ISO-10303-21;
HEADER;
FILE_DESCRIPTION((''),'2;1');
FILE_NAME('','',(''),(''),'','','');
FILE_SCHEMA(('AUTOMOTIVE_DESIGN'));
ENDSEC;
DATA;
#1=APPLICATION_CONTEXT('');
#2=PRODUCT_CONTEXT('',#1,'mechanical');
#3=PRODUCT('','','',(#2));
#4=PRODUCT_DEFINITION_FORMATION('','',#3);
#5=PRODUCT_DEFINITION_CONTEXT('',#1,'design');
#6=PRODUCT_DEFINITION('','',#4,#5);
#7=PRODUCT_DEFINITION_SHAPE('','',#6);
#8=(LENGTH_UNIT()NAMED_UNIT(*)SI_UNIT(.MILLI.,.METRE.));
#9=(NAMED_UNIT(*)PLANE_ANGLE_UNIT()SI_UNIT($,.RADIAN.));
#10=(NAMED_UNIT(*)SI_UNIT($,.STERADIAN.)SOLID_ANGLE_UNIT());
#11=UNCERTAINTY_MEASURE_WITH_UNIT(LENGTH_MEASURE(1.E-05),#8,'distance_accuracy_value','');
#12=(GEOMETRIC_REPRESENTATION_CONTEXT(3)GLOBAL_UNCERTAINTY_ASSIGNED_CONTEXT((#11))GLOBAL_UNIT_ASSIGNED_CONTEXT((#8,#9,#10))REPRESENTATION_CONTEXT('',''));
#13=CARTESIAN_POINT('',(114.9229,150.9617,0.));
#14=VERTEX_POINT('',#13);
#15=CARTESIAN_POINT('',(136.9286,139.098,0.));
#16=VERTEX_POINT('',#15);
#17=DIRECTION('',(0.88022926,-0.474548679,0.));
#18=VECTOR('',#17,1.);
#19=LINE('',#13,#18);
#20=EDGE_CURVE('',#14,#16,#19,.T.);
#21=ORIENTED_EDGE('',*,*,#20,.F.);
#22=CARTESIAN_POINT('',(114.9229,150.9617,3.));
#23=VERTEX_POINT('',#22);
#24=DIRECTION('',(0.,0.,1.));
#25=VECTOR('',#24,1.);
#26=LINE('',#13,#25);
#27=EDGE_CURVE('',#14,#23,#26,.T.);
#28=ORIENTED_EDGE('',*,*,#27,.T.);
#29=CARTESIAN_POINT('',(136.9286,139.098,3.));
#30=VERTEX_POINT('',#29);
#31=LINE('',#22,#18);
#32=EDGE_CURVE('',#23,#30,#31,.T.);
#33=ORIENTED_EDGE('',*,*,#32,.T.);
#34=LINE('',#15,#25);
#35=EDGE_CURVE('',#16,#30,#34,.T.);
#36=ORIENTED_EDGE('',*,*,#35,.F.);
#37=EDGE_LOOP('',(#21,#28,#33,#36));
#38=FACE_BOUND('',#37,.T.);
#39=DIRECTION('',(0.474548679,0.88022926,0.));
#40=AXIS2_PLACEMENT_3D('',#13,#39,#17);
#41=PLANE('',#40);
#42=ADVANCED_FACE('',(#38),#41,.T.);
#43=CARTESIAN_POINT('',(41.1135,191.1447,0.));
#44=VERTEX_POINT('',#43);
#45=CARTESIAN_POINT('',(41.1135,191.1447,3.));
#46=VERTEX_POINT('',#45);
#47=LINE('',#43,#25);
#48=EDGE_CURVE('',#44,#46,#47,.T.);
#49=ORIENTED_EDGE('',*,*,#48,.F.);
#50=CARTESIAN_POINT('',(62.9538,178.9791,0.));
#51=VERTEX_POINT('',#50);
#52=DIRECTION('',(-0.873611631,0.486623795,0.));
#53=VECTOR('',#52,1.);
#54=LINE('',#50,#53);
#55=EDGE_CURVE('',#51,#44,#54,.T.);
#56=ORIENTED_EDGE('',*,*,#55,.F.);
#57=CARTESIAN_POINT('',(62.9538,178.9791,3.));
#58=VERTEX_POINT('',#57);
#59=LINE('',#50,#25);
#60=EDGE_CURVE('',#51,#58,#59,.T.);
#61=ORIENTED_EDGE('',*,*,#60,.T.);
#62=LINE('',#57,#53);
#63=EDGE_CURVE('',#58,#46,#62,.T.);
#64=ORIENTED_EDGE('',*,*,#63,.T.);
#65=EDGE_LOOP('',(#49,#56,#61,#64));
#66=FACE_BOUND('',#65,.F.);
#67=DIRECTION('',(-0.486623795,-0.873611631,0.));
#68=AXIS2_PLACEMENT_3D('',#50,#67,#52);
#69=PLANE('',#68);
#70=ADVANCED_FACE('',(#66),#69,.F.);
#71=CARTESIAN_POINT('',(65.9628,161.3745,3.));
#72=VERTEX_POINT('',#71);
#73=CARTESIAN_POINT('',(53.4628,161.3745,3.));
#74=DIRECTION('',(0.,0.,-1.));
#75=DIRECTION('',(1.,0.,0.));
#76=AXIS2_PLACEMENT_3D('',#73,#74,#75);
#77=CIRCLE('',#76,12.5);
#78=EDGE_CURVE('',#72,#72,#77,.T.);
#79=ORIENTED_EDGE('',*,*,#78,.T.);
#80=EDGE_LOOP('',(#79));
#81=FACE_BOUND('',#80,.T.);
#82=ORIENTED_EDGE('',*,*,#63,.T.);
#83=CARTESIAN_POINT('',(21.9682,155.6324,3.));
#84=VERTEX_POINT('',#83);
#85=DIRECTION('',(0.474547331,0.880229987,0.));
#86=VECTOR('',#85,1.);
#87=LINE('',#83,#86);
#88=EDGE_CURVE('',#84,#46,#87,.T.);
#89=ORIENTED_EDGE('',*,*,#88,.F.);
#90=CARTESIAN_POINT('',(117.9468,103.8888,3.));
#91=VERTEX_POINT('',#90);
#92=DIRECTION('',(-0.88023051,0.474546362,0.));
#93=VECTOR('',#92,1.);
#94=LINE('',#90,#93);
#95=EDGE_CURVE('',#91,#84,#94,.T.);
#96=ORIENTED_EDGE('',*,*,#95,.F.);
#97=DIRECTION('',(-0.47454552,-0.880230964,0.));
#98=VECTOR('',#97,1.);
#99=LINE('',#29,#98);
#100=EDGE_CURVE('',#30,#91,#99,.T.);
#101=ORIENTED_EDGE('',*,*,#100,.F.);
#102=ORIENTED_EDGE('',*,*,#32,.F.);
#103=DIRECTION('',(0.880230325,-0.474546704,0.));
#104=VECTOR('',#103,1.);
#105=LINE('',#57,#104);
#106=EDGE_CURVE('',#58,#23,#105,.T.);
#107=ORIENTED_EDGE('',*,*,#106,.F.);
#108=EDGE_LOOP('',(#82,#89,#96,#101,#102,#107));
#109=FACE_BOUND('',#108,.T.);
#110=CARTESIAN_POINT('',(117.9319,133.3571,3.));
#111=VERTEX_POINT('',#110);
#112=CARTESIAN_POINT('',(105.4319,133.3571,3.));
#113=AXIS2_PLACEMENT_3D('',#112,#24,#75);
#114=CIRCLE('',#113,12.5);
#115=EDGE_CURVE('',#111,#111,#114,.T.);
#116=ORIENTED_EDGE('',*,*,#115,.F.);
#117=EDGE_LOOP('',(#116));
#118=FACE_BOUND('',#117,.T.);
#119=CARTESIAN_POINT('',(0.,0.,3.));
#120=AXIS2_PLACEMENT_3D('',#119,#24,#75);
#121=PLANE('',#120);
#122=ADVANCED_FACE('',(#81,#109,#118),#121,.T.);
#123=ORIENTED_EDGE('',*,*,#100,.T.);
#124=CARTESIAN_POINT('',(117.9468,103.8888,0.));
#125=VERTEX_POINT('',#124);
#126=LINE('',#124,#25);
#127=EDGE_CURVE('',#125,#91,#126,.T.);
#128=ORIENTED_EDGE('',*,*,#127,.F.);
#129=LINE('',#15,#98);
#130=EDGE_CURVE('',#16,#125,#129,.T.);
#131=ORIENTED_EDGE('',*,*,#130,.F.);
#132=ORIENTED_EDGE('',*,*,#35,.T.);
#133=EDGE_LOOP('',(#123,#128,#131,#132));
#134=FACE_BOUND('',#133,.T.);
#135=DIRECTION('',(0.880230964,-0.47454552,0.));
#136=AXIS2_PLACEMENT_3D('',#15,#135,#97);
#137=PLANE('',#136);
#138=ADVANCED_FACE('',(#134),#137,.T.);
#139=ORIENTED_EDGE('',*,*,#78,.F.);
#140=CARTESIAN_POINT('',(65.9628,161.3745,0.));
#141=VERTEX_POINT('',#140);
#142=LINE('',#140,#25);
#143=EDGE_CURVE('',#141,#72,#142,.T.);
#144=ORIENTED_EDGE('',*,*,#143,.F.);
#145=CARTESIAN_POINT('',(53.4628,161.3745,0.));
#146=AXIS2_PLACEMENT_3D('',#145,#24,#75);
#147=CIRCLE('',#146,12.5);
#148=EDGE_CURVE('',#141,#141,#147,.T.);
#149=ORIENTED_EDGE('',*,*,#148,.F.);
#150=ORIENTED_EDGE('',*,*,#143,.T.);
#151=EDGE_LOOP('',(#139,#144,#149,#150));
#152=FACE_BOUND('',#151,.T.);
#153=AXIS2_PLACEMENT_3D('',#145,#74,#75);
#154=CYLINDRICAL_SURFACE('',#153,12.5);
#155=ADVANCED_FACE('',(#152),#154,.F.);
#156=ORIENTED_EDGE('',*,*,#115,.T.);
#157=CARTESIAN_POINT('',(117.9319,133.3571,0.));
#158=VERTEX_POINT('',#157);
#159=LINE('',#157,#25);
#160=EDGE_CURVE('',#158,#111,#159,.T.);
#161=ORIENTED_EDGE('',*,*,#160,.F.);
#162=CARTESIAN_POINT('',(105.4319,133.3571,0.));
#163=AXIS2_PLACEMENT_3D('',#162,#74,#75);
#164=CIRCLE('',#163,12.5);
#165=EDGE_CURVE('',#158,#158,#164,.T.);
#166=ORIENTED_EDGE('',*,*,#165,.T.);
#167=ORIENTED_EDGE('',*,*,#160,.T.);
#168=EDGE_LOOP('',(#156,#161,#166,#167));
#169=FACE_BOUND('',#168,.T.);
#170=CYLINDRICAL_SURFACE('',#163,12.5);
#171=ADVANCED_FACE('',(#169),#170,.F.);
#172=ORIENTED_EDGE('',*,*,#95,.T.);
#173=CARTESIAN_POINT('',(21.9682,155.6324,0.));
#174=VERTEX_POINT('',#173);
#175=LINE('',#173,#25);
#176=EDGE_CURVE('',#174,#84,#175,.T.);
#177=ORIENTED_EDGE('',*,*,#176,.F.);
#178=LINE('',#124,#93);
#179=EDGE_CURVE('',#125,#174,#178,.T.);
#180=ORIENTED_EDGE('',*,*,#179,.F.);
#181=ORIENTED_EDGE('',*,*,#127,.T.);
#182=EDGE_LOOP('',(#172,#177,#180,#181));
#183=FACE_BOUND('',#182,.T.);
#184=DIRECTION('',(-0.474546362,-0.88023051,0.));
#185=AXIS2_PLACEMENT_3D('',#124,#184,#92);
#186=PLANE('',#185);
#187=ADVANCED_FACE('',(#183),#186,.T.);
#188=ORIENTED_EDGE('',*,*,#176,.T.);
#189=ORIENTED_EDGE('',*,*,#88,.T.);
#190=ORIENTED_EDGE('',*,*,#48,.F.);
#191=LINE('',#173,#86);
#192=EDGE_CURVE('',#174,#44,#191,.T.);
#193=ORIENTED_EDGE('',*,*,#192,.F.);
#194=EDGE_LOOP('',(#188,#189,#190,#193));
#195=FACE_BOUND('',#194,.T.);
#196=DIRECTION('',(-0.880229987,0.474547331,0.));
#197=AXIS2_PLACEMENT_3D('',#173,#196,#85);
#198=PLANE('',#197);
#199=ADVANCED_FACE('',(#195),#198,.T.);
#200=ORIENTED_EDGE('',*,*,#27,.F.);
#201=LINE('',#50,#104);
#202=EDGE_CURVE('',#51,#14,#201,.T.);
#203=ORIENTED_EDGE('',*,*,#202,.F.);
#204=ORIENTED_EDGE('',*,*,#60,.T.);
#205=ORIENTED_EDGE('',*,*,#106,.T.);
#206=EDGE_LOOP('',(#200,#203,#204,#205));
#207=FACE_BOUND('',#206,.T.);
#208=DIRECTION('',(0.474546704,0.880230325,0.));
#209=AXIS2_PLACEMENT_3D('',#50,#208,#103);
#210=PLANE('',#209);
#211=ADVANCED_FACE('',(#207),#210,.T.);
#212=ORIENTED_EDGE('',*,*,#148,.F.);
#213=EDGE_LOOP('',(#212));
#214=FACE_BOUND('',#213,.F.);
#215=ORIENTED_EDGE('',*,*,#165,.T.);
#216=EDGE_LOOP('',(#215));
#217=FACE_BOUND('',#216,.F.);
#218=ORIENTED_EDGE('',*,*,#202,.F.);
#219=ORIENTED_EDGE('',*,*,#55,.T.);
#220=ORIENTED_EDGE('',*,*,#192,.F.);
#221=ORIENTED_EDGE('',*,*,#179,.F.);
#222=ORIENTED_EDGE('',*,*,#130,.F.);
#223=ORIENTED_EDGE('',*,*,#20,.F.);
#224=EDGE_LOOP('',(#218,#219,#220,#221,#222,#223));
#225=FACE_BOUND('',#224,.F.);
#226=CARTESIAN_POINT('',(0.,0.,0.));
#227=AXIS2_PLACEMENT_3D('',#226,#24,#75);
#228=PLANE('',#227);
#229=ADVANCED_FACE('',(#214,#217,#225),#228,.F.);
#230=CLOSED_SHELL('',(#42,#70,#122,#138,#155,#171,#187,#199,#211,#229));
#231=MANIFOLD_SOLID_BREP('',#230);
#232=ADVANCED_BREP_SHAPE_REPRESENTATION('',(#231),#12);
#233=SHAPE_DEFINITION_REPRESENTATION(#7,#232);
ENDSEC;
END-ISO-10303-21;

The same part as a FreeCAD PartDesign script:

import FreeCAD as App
import Part
import Sketcher

V = App.Vector
Q = App.Units.Quantity


def add_polygon(sketch, points):
    """Adds a closed chain of lines whose ends are joined by coincident constraints."""
    first, n = sketch.GeometryCount, len(points)
    for a, b in zip(points, points[1:] + points[:1]):
        sketch.addGeometry(Part.LineSegment(App.Vector(*a, 0), App.Vector(*b, 0)), False)
    for i in range(n):
        sketch.addConstraint(Sketcher.Constraint("Coincident", first + i, 2, first + (i + 1) % n, 1))

doc = App.newDocument("Part")
body = doc.addObject("PartDesign::Body", "Body")

sketch1 = body.newObject("Sketcher::SketchObject", "Sketch")
sketch1.AttachmentSupport = (doc.getObject("XY_Plane"), [""])
sketch1.MapMode = "FlatFace"
add_polygon(sketch1, [(136.9286, 139.098), (114.9229, 150.9617), (62.9538, 178.9791), (41.1135, 191.1447), (21.9682, 155.6324), (117.9468, 103.8888)])
sketch1.addGeometry(Part.Circle(V(105.4319, 133.3571, 0), V(0, 0, 1), 12.5), False)
sketch1.addGeometry(Part.Circle(V(53.4628, 161.3745, 0), V(0, 0, 1), 12.5), False)
sketch1.addConstraint([
    Sketcher.Constraint("Equal", 6, 7),
    Sketcher.Constraint("Parallel", 0, 1),
    Sketcher.Constraint("Perpendicular", 1, 3),
    Sketcher.Constraint("Perpendicular", 3, 4),
    Sketcher.Constraint("Perpendicular", 4, 5),
    Sketcher.Constraint("Equal", 0, 2),
    Sketcher.Constraint("Diameter", 6, 25.0),
    Sketcher.Constraint("Distance", 0, 25.0),
    Sketcher.Constraint("Distance", 5, 40.0),
    Sketcher.Constraint("DistanceX", -1, 1, 6, 3, 105.432),
    Sketcher.Constraint("DistanceY", -1, 1, 6, 3, 133.357),
    Sketcher.Constraint("DistanceX", -1, 1, 7, 3, 53.4628),
    Sketcher.Constraint("DistanceY", -1, 1, 7, 3, 161.3745),
    Sketcher.Constraint("Angle", 0, Q("151.67 deg")),
    Sketcher.Constraint("Angle", 2, Q("150.881 deg")),
    Sketcher.Constraint("DistanceX", 7, 3, 0, 2, 61.46),
    Sketcher.Constraint("Distance", 4, 109.038),
    Sketcher.Constraint("DistanceY", -1, 1, 1, 2, 178.979),
])
pad1 = body.newObject("PartDesign::Pad", "Pad")
pad1.Profile = sketch1
pad1.Length = 3

doc.recompute()
